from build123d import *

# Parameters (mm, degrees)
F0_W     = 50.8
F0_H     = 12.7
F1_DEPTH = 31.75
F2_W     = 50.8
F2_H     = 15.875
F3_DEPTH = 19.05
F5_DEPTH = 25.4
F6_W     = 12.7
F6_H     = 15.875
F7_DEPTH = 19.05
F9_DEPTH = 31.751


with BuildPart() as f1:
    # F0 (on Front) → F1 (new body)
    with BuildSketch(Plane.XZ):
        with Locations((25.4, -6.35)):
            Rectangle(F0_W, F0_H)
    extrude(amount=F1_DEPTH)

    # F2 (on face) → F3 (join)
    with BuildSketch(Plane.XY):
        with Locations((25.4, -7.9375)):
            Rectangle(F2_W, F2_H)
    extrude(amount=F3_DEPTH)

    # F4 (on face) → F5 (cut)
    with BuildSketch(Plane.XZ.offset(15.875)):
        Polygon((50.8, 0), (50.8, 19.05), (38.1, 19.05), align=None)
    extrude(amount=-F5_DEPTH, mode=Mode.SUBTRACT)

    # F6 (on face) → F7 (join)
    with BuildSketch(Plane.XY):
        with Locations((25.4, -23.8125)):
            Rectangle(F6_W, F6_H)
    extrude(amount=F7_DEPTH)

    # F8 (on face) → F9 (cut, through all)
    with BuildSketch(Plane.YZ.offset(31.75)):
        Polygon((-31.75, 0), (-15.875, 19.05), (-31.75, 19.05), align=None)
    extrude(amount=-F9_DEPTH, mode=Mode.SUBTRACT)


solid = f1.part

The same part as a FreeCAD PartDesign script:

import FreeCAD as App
import Part
import Sketcher
from FreeCAD import Vector
Q = App.Units.Quantity


def add_polygon(sketch, points):
    """Adds a closed chain of lines whose ends are joined by coincident constraints."""
    first, n = sketch.GeometryCount, len(points)
    for a, b in zip(points, points[1:] + points[:1]):
        sketch.addGeometry(Part.LineSegment(App.Vector(*a, 0), App.Vector(*b, 0)), False)
    for i in range(n):
        sketch.addConstraint(Sketcher.Constraint("Coincident", first + i, 2, first + (i + 1) % n, 1))

doc = App.newDocument("Part")
params = doc.addObject("Spreadsheet::Sheet", "Params")
for row, (alias, value) in enumerate([
    ("sketch1_width", "2 in"),
    ("sketch1_height", "0.5 in"),
    ("pad1_length", "1.25 in"),
    ("sketch2_width", "2 in"),
    ("sketch2_height", "0.625 in"),
    ("pad2_length", "0.75 in"),
    ("sketch3_width", "0.5 in"),
    ("sketch3_height", "0.75 in"),
    ("pocket1_length", "1 in"),
    ("sketch4_width", "0.5 in"),
    ("sketch4_height", "0.625 in"),
    ("pad3_length", "0.75 in"),
    ("sketch5_height", "0.75 in"),
    ("sketch5_width", "0.625 in"),
], start=1):
    params.set(f"A{row}", alias)
    params.set(f"B{row}", "=" + value)
    params.setAlias(f"B{row}", alias)

body = doc.addObject("PartDesign::Body", "Body")

# Sketch on XZ plane
sketch1 = body.newObject("Sketcher::SketchObject", "Sketch")
sketch1.AttachmentSupport = (doc.getObject("XZ_Plane"), [""])
sketch1.MapMode = "FlatFace"
add_polygon(sketch1, [(0, 0), (0, -13), (51, -13), (51, 0)])  # lines 0-3
sketch1.addConstraint([
    Sketcher.Constraint("Vertical", 0),
    Sketcher.Constraint("Horizontal", 1),
    Sketcher.Constraint("Vertical", 2),
    Sketcher.Constraint("Horizontal", 3),
    Sketcher.Constraint("Coincident", 3, 2, -1, 1),
    Sketcher.Constraint("DistanceX", 1, 1, 1, 2, Q("2 in")),
    Sketcher.Constraint("DistanceY", 0, 2, 0, 1, Q("0.5 in")),
])
sketch1.setExpression("Constraints[9]", "Params.sketch1_width")
sketch1.setExpression("Constraints[10]", "Params.sketch1_height")
pad1 = body.newObject("PartDesign::Pad", "Pad")
pad1.Profile = sketch1
pad1.setExpression("Length", "Params.pad1_length")

# Sketch on XY plane
sketch2 = body.newObject("Sketcher::SketchObject", "Sketch001")
sketch2.AttachmentSupport = (doc.getObject("XY_Plane"), [""])
sketch2.MapMode = "FlatFace"
add_polygon(sketch2, [(0, 0), (0, -16), (51, -16), (51, 0)])  # lines 0-3
sketch2.addConstraint([
    Sketcher.Constraint("Vertical", 0),
    Sketcher.Constraint("Horizontal", 1),
    Sketcher.Constraint("Vertical", 2),
    Sketcher.Constraint("Horizontal", 3),
    Sketcher.Constraint("Coincident", 3, 2, -1, 1),
    Sketcher.Constraint("DistanceX", 1, 1, 1, 2, Q("2 in")),
    Sketcher.Constraint("DistanceY", 0, 2, 0, 1, Q("0.625 in")),
])
sketch2.setExpression("Constraints[9]", "Params.sketch2_width")
sketch2.setExpression("Constraints[10]", "Params.sketch2_height")
pad2 = body.newObject("PartDesign::Pad", "Pad001")
pad2.Profile = sketch2
pad2.setExpression("Length", "Params.pad2_length")

# Sketch on XZ plane
sketch3 = body.newObject("Sketcher::SketchObject", "Sketch002")
sketch3.AttachmentSupport = (doc.getObject("XZ_Plane"), [""])
sketch3.MapMode = "FlatFace"
sketch3.AttachmentOffset = App.Placement(Vector(0, 0, 0.625 * 25.4), App.Rotation())
add_polygon(sketch3, [(51, 0), (51, 19), (38, 19)])  # lines 0-2
sketch3.addConstraint([
    Sketcher.Constraint("Vertical", 0),
    Sketcher.Constraint("Horizontal", 1),
    Sketcher.Constraint("PointOnObject", 2, 2, -1),
    Sketcher.Constraint("DistanceX", 1, 2, 1, 1, Q("0.5 in")),
    Sketcher.Constraint("DistanceX", -1, 1, 0, 2, Q("2 in")),
    Sketcher.Constraint("DistanceY", 0, 1, 0, 2, Q("0.75 in")),
])
sketch3.setExpression("Constraints[6]", "Params.sketch3_width")
sketch3.setExpression("Constraints[8]", "Params.sketch3_height")
pocket1 = body.newObject("PartDesign::Pocket", "Pocket")
pocket1.Profile = sketch3
pocket1.setExpression("Length", "Params.pocket1_length")

# Sketch on XY plane
sketch4 = body.newObject("Sketcher::SketchObject", "Sketch003")
sketch4.AttachmentSupport = (doc.getObject("XY_Plane"), [""])
sketch4.MapMode = "FlatFace"
add_polygon(sketch4, [(19, -16), (19, -32), (32, -32), (32, -16)])  # lines 0-3
sketch4.addConstraint([
    Sketcher.Constraint("Vertical", 0),
    Sketcher.Constraint("Horizontal", 1),
    Sketcher.Constraint("Vertical", 2),
    Sketcher.Constraint("Horizontal", 3),
    Sketcher.Constraint("DistanceX", 1, 1, 1, 2, Q("0.5 in")),
    Sketcher.Constraint("DistanceY", 0, 2, 0, 1, Q("0.625 in")),
    Sketcher.Constraint("DistanceX", -1, 1, 0, 2, Q("0.75 in")),
    Sketcher.Constraint("DistanceY", 0, 2, -1, 1, Q("1.25 in")),
])
sketch4.setExpression("Constraints[8]", "Params.sketch4_width")
sketch4.setExpression("Constraints[9]", "Params.sketch4_height")
pad3 = body.newObject("PartDesign::Pad", "Pad002")
pad3.Profile = sketch4
pad3.setExpression("Length", "Params.pad3_length")

# Sketch on YZ plane
sketch5 = body.newObject("Sketcher::SketchObject", "Sketch004")
sketch5.AttachmentSupport = (doc.getObject("YZ_Plane"), [""])
sketch5.MapMode = "FlatFace"
sketch5.AttachmentOffset = App.Placement(Vector(0, 0, 1.25 * 25.4), App.Rotation())
add_polygon(sketch5, [(-32, 0), (-16, 19), (-32, 19)])  # lines 0-2
sketch5.addConstraint([
    Sketcher.Constraint("Horizontal", 1),
    Sketcher.Constraint("Vertical", 2),
    Sketcher.Constraint("PointOnObject", 2, 2, -1),
    Sketcher.Constraint("DistanceY", 2, 2, 2, 1, Q("0.75 in")),
    Sketcher.Constraint("DistanceX", 1, 2, 1, 1, Q("0.625 in")),
    Sketcher.Constraint("DistanceX", 1, 2, -1, 1, Q("1.25 in")),
])
sketch5.setExpression("Constraints[6]", "Params.sketch5_height")
sketch5.setExpression("Constraints[7]", "Params.sketch5_width")
pocket2 = body.newObject("PartDesign::Pocket", "Pocket001")
pocket2.Profile = sketch5
pocket2.Type = "ThroughAll"

doc.recompute()
